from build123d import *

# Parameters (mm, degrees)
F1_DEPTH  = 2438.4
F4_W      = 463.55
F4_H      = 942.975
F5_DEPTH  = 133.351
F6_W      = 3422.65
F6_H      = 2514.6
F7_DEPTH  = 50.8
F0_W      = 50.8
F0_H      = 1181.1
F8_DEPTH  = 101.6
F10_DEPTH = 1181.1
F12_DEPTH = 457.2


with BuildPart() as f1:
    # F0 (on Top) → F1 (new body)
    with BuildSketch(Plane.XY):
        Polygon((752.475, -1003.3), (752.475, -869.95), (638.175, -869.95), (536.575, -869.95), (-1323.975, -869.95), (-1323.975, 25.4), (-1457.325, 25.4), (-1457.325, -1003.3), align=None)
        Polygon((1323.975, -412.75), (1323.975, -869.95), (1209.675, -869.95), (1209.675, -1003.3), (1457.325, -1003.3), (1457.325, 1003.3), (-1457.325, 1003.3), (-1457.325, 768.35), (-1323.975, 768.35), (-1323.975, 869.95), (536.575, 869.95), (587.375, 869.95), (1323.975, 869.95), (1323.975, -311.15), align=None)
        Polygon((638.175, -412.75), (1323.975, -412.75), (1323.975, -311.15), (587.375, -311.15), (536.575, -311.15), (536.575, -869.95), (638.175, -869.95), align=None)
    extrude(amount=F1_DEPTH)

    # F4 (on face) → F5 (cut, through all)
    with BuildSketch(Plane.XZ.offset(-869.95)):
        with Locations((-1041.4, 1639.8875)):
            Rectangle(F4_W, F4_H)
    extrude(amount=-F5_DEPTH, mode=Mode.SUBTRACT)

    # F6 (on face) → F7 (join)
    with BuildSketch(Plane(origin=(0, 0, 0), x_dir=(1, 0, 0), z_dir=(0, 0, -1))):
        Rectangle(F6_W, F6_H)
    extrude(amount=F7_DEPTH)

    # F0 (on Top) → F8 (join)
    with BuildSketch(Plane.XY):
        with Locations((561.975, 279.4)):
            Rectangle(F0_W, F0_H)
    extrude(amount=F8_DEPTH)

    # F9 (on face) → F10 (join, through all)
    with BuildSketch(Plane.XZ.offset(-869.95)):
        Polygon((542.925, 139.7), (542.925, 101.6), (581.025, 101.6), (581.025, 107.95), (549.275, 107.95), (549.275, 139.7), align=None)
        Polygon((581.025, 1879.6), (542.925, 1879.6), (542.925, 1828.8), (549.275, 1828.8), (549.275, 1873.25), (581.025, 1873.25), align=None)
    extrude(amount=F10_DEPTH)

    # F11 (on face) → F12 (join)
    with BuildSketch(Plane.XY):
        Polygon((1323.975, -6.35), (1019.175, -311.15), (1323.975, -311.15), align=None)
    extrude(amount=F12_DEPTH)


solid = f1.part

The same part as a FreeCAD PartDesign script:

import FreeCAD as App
import Part
import Sketcher
Q = App.Units.Quantity

doc = App.newDocument("Part")
params = doc.addObject("Spreadsheet::Sheet", "Params")
for row, (alias, value) in enumerate([
    ("sketch1_width", "27 in"),
    ("sketch1_width2", "31 in"),
    ("sketch1_width3", "87 in"),
    ("sketch1_height", "18 in"),
    ("sketch1_height2", "79 in"),
    ("pad1_length", "96 in"),
    ("sketch2_width", "18.25 in"),
    ("sketch2_height", "37.125 in"),
    ("sketch3_height", "99 in"),
    ("sketch3_width", "134.75 in"),
    ("pad2_length", "2 in"),
    ("sketch4_width", "2 in"),
    ("sketch4_height", "46.5 in"),
    ("pad3_length", "4 in"),
    ("sketch5_height", "2 in"),
    ("sketch5_width", "1.5 in"),
    ("sketch5_width2", "1.25 in"),
    ("sketch6_width", "12 in"),
    ("pad5_length", "18 in"),
], start=1):
    params.set(f"A{row}", alias)
    params.set(f"B{row}", "=" + value)
    params.setAlias(f"B{row}", alias)

body = doc.addObject("PartDesign::Body", "Body")

# Sketch on XY plane
sketch1 = body.newObject("Sketcher::SketchObject", "Sketch")
sketch1.AttachmentSupport = (doc.getObject("XY_Plane"), [""])
sketch1.MapMode = "FlatFace"
sketch1.addGeometry(Part.LineSegment(App.Vector(752.475, -1003.3, 0), App.Vector(752.475, -869.95, 0)), False)
sketch1.addGeometry(Part.LineSegment(App.Vector(752.475, -869.95, 0), App.Vector(638.175, -869.95, 0)), False)
sketch1.addGeometry(Part.LineSegment(App.Vector(638.175, -869.95, 0), App.Vector(638.175, -412.75, 0)), False)
sketch1.addGeometry(Part.LineSegment(App.Vector(638.175, -412.75, 0), App.Vector(1323.975, -412.75, 0)), False)
sketch1.addGeometry(Part.LineSegment(App.Vector(1323.975, -412.75, 0), App.Vector(1323.975, -869.95, 0)), False)
sketch1.addGeometry(Part.LineSegment(App.Vector(1323.975, -869.95, 0), App.Vector(1209.675, -869.95, 0)), False)
sketch1.addGeometry(Part.LineSegment(App.Vector(1209.675, -869.95, 0), App.Vector(1209.675, -1003.3, 0)), False)
sketch1.addGeometry(Part.LineSegment(App.Vector(1209.675, -1003.3, 0), App.Vector(1457.325, -1003.3, 0)), False)
sketch1.addGeometry(Part.LineSegment(App.Vector(1457.325, -1003.3, 0), App.Vector(1457.325, 1003.3, 0)), False)
sketch1.addGeometry(Part.LineSegment(App.Vector(1457.325, 1003.3, 0), App.Vector(-1457.325, 1003.3, 0)), False)
sketch1.addGeometry(Part.LineSegment(App.Vector(-1457.325, 1003.3, 0), App.Vector(-1457.325, 768.35, 0)), False)
sketch1.addGeometry(Part.LineSegment(App.Vector(-1457.325, 768.35, 0), App.Vector(-1323.975, 768.35, 0)), False)
sketch1.addGeometry(Part.LineSegment(App.Vector(-1323.975, 768.35, 0), App.Vector(-1323.975, 869.95, 0)), False)
sketch1.addGeometry(Part.LineSegment(App.Vector(-1323.975, 869.95, 0), App.Vector(1323.975, 869.95, 0)), False)
sketch1.addGeometry(Part.LineSegment(App.Vector(1323.975, 869.95, 0), App.Vector(1323.975, -311.15, 0)), False)
sketch1.addGeometry(Part.LineSegment(App.Vector(1323.975, -311.15, 0), App.Vector(536.575, -311.15, 0)), False)
sketch1.addGeometry(Part.LineSegment(App.Vector(536.575, -311.15, 0), App.Vector(536.575, -869.95, 0)), False)
sketch1.addGeometry(Part.LineSegment(App.Vector(536.575, -869.95, 0), App.Vector(-1323.975, -869.95, 0)), False)
sketch1.addGeometry(Part.LineSegment(App.Vector(-1323.975, -869.95, 0), App.Vector(-1323.975, 25.4, 0)), False)
sketch1.addGeometry(Part.LineSegment(App.Vector(-1323.975, 25.4, 0), App.Vector(-1457.325, 25.4, 0)), False)
sketch1.addGeometry(Part.LineSegment(App.Vector(-1457.325, 25.4, 0), App.Vector(-1457.325, -1003.3, 0)), False)
sketch1.addGeometry(Part.LineSegment(App.Vector(-1457.325, -1003.3, 0), App.Vector(752.475, -1003.3, 0)), False)
sketch1.addConstraint(Sketcher.Constraint("Coincident", 0, 2, 1, 1))
sketch1.addConstraint(Sketcher.Constraint("Coincident", 1, 2, 2, 1))
sketch1.addConstraint(Sketcher.Constraint("Coincident", 2, 2, 3, 1))
sketch1.addConstraint(Sketcher.Constraint("Coincident", 3, 2, 4, 1))
sketch1.addConstraint(Sketcher.Constraint("Coincident", 4, 2, 5, 1))
sketch1.addConstraint(Sketcher.Constraint("Coincident", 5, 2, 6, 1))
sketch1.addConstraint(Sketcher.Constraint("Coincident", 6, 2, 7, 1))
sketch1.addConstraint(Sketcher.Constraint("Coincident", 7, 2, 8, 1))
sketch1.addConstraint(Sketcher.Constraint("Coincident", 8, 2, 9, 1))
sketch1.addConstraint(Sketcher.Constraint("Coincident", 9, 2, 10, 1))
sketch1.addConstraint(Sketcher.Constraint("Coincident", 10, 2, 11, 1))
sketch1.addConstraint(Sketcher.Constraint("Coincident", 11, 2, 12, 1))
sketch1.addConstraint(Sketcher.Constraint("Coincident", 12, 2, 13, 1))
sketch1.addConstraint(Sketcher.Constraint("Coincident", 13, 2, 14, 1))
sketch1.addConstraint(Sketcher.Constraint("Coincident", 14, 2, 15, 1))
sketch1.addConstraint(Sketcher.Constraint("Coincident", 15, 2, 16, 1))
sketch1.addConstraint(Sketcher.Constraint("Coincident", 16, 2, 17, 1))
sketch1.addConstraint(Sketcher.Constraint("Coincident", 17, 2, 18, 1))
sketch1.addConstraint(Sketcher.Constraint("Coincident", 18, 2, 19, 1))
sketch1.addConstraint(Sketcher.Constraint("Coincident", 19, 2, 20, 1))
sketch1.addConstraint(Sketcher.Constraint("Coincident", 20, 2, 21, 1))
sketch1.addConstraint(Sketcher.Constraint("Coincident", 21, 2, 0, 1))
sketch1.addConstraint(Sketcher.Constraint("Vertical", 0))
sketch1.addConstraint(Sketcher.Constraint("Horizontal", 1))
sketch1.addConstraint(Sketcher.Constraint("Vertical", 2))
sketch1.addConstraint(Sketcher.Constraint("Horizontal", 3))
sketch1.addConstraint(Sketcher.Constraint("Vertical", 4))
sketch1.addConstraint(Sketcher.Constraint("Horizontal", 5))
sketch1.addConstraint(Sketcher.Constraint("Vertical", 6))
sketch1.addConstraint(Sketcher.Constraint("Horizontal", 7))
sketch1.addConstraint(Sketcher.Constraint("Vertical", 8))
sketch1.addConstraint(Sketcher.Constraint("Horizontal", 9))
sketch1.addConstraint(Sketcher.Constraint("Vertical", 10))
sketch1.addConstraint(Sketcher.Constraint("Horizontal", 11))
sketch1.addConstraint(Sketcher.Constraint("Vertical", 12))
sketch1.addConstraint(Sketcher.Constraint("Horizontal", 13))
sketch1.addConstraint(Sketcher.Constraint("Vertical", 14))
sketch1.addConstraint(Sketcher.Constraint("Horizontal", 15))
sketch1.addConstraint(Sketcher.Constraint("Vertical", 16))
sketch1.addConstraint(Sketcher.Constraint("Horizontal", 17))
sketch1.addConstraint(Sketcher.Constraint("Vertical", 18))
sketch1.addConstraint(Sketcher.Constraint("Horizontal", 19))
sketch1.addConstraint(Sketcher.Constraint("Vertical", 20))
sketch1.addConstraint(Sketcher.Constraint("Horizontal", 21))
sketch1.addConstraint(Sketcher.Constraint("Symmetric", 7, 2, 9, 2, -1, 1))
sketch1.addConstraint(Sketcher.Constraint("Symmetric", 4, 2, 12, 2, -1, 1))
sketch1.addConstraint(Sketcher.Constraint("Symmetric", 13, 2, 17, 2, -1, 1))
sketch1.addConstraint(Sketcher.Constraint("Symmetric", 8, 2, 20, 2, -1, 1))
sketch1.addConstraint(Sketcher.Constraint("Horizontal", 1, 2, 4, 2))
sketch1.addConstraint(Sketcher.Constraint("Vertical", 4, 2, 13, 2))
sketch1.addConstraint(Sketcher.Constraint("Equal", 1, 5))
sketch1.addConstraint(Sketcher.Constraint("Equal", 19, 0))
sketch1.addConstraint(Sketcher.Constraint("DistanceX", 3, 1, 3, 2, Q("27 in")))
sketch1.addConstraint(Sketcher.Constraint("DistanceX", 15, 2, 15, 1, Q("31 in")))
sketch1.addConstraint(Sketcher.Constraint("DistanceX", 21, 1, 21, 2, Q("87 in")))
sketch1.addConstraint(Sketcher.Constraint("DistanceY", 2, 1, 2, 2, Q("18 in")))
sketch1.addConstraint(Sketcher.Constraint("DistanceY", 8, 1, 8, 2, Q("79 in")))
sketch1.addConstraint(Sketcher.Constraint("DistanceY", 12, 1, 12, 2, Q("4 in")))
sketch1.addConstraint(Sketcher.Constraint("DistanceY", 16, 2, 16, 1, Q("22 in")))
sketch1.addConstraint(Sketcher.Constraint("DistanceX", 1, 2, 1, 1, Q("4.5 in")))
sketch1.addConstraint(Sketcher.Constraint("DistanceY", 14, 2, 14, 1, Q("46.5 in")))
sketch1.addConstraint(Sketcher.Constraint("DistanceY", 20, 2, 20, 1, Q("40.5 in")))
sketch1.setExpression("Constraints[52]", "Params.sketch1_width")
sketch1.setExpression("Constraints[53]", "Params.sketch1_width2")
sketch1.setExpression("Constraints[54]", "Params.sketch1_width3")
sketch1.setExpression("Constraints[55]", "Params.sketch1_height")
sketch1.setExpression("Constraints[56]", "Params.sketch1_height2")
pad1 = body.newObject("PartDesign::Pad", "Pad")
pad1.Profile = sketch1
pad1.setExpression("Length", "Params.pad1_length")

# Sketch on XZ plane
sketch2 = body.newObject("Sketcher::SketchObject", "Sketch001")
sketch2.AttachmentSupport = (doc.getObject("XZ_Plane"), [""])
sketch2.MapMode = "FlatFace"
sketch2.AttachmentOffset = App.Placement(App.Vector(0, 0, -34.25 * 25.4), App.Rotation())
sketch2.addGeometry(Part.LineSegment(App.Vector(-1273.175, 2111.375, 0), App.Vector(-1273.175, 1168.4, 0)), False)
sketch2.addGeometry(Part.LineSegment(App.Vector(-1273.175, 1168.4, 0), App.Vector(-809.625, 1168.4, 0)), False)
sketch2.addGeometry(Part.LineSegment(App.Vector(-809.625, 1168.4, 0), App.Vector(-809.625, 2111.375, 0)), False)
sketch2.addGeometry(Part.LineSegment(App.Vector(-809.625, 2111.375, 0), App.Vector(-1273.175, 2111.375, 0)), False)
sketch2.addConstraint(Sketcher.Constraint("Coincident", 0, 2, 1, 1))
sketch2.addConstraint(Sketcher.Constraint("Coincident", 1, 2, 2, 1))
sketch2.addConstraint(Sketcher.Constraint("Coincident", 2, 2, 3, 1))
sketch2.addConstraint(Sketcher.Constraint("Coincident", 3, 2, 0, 1))
sketch2.addConstraint(Sketcher.Constraint("Vertical", 0))
sketch2.addConstraint(Sketcher.Constraint("Horizontal", 1))
sketch2.addConstraint(Sketcher.Constraint("Vertical", 2))
sketch2.addConstraint(Sketcher.Constraint("Horizontal", 3))
sketch2.addConstraint(Sketcher.Constraint("DistanceY", -1, 1, 0, 2, Q("46 in")))
sketch2.addConstraint(Sketcher.Constraint("DistanceX", 1, 1, 1, 2, Q("18.25 in")))
sketch2.addConstraint(Sketcher.Constraint("DistanceY", 0, 2, 0, 1, Q("37.125 in")))
sketch2.addConstraint(Sketcher.Constraint("DistanceX", 0, 2, -1, 1, Q("50.125 in")))
sketch2.setExpression("Constraints[9]", "Params.sketch2_width")
sketch2.setExpression("Constraints[10]", "Params.sketch2_height")
pocket1 = body.newObject("PartDesign::Pocket", "Pocket")
pocket1.Profile = sketch2
pocket1.Type = "ThroughAll"

# Sketch on XY plane
sketch3 = body.newObject("Sketcher::SketchObject", "Sketch002")
sketch3.AttachmentSupport = (doc.getObject("XY_Plane"), [""])
sketch3.MapMode = "FlatFace"
sketch3.addGeometry(Part.LineSegment(App.Vector(-1711.325, -1257.3, 0), App.Vector(-1711.325, 1257.3, 0)), False)
sketch3.addGeometry(Part.LineSegment(App.Vector(-1711.325, 1257.3, 0), App.Vector(1711.325, 1257.3, 0)), False)
sketch3.addGeometry(Part.LineSegment(App.Vector(1711.325, 1257.3, 0), App.Vector(1711.325, -1257.3, 0)), False)
sketch3.addGeometry(Part.LineSegment(App.Vector(1711.325, -1257.3, 0), App.Vector(-1711.325, -1257.3, 0)), False)
sketch3.addConstraint(Sketcher.Constraint("Coincident", 0, 2, 1, 1))
sketch3.addConstraint(Sketcher.Constraint("Coincident", 1, 2, 2, 1))
sketch3.addConstraint(Sketcher.Constraint("Coincident", 2, 2, 3, 1))
sketch3.addConstraint(Sketcher.Constraint("Coincident", 3, 2, 0, 1))
sketch3.addConstraint(Sketcher.Constraint("Vertical", 0))
sketch3.addConstraint(Sketcher.Constraint("Horizontal", 1))
sketch3.addConstraint(Sketcher.Constraint("Vertical", 2))
sketch3.addConstraint(Sketcher.Constraint("Horizontal", 3))
sketch3.addConstraint(Sketcher.Constraint("Symmetric", 0, 2, 2, 2, -1, 1))
sketch3.addConstraint(Sketcher.Constraint("DistanceY", 0, 1, 0, 2, Q("99 in")))
sketch3.addConstraint(Sketcher.Constraint("DistanceX", 1, 1, 1, 2, Q("134.75 in")))
sketch3.setExpression("Constraints[9]", "Params.sketch3_height")
sketch3.setExpression("Constraints[10]", "Params.sketch3_width")
pad2 = body.newObject("PartDesign::Pad", "Pad001")
pad2.Profile = sketch3
pad2.setExpression("Length", "Params.pad2_length")
pad2.Reversed = True

# Sketch on XY plane
sketch4 = body.newObject("Sketcher::SketchObject", "Sketch003")
sketch4.AttachmentSupport = (doc.getObject("XY_Plane"), [""])
sketch4.MapMode = "FlatFace"
sketch4.addGeometry(Part.LineSegment(App.Vector(536.575, 869.95, 0), App.Vector(536.575, -311.15, 0)), False)
sketch4.addGeometry(Part.LineSegment(App.Vector(536.575, -311.15, 0), App.Vector(587.375, -311.15, 0)), False)
sketch4.addGeometry(Part.LineSegment(App.Vector(587.375, -311.15, 0), App.Vector(587.375, 869.95, 0)), False)
sketch4.addGeometry(Part.LineSegment(App.Vector(587.375, 869.95, 0), App.Vector(536.575, 869.95, 0)), False)
sketch4.addConstraint(Sketcher.Constraint("Coincident", 0, 2, 1, 1))
sketch4.addConstraint(Sketcher.Constraint("Coincident", 1, 2, 2, 1))
sketch4.addConstraint(Sketcher.Constraint("Coincident", 2, 2, 3, 1))
sketch4.addConstraint(Sketcher.Constraint("Coincident", 3, 2, 0, 1))
sketch4.addConstraint(Sketcher.Constraint("Vertical", 0))
sketch4.addConstraint(Sketcher.Constraint("Horizontal", 1))
sketch4.addConstraint(Sketcher.Constraint("Vertical", 2))
sketch4.addConstraint(Sketcher.Constraint("Horizontal", 3))
sketch4.addConstraint(Sketcher.Constraint("DistanceX", 1, 1, 1, 2, Q("2 in")))
sketch4.addConstraint(Sketcher.Constraint("DistanceY", 0, 2, 0, 1, Q("46.5 in")))
sketch4.addConstraint(Sketcher.Constraint("DistanceY", 0, 2, -1, 1, Q("12.25 in")))
sketch4.addConstraint(Sketcher.Constraint("DistanceX", -1, 1, 0, 2, Q("21.125 in")))
sketch4.setExpression("Constraints[8]", "Params.sketch4_width")
sketch4.setExpression("Constraints[9]", "Params.sketch4_height")
pad3 = body.newObject("PartDesign::Pad", "Pad002")
pad3.Profile = sketch4
pad3.setExpression("Length", "Params.pad3_length")

# Sketch on XZ plane
sketch5 = body.newObject("Sketcher::SketchObject", "Sketch004")
sketch5.AttachmentSupport = (doc.getObject("XZ_Plane"), [""])
sketch5.MapMode = "FlatFace"
sketch5.AttachmentOffset = App.Placement(App.Vector(0, 0, -34.25 * 25.4), App.Rotation())
sketch5.addGeometry(Part.LineSegment(App.Vector(542.925, 139.7, 0), App.Vector(542.925, 101.6, 0)), False)
sketch5.addGeometry(Part.LineSegment(App.Vector(542.925, 101.6, 0), App.Vector(581.025, 101.6, 0)), False)
sketch5.addGeometry(Part.LineSegment(App.Vector(581.025, 101.6, 0), App.Vector(581.025, 107.95, 0)), False)
sketch5.addGeometry(Part.LineSegment(App.Vector(581.025, 107.95, 0), App.Vector(549.275, 107.95, 0)), False)
sketch5.addGeometry(Part.LineSegment(App.Vector(549.275, 107.95, 0), App.Vector(549.275, 139.7, 0)), False)
sketch5.addGeometry(Part.LineSegment(App.Vector(549.275, 139.7, 0), App.Vector(542.925, 139.7, 0)), False)
sketch5.addGeometry(Part.LineSegment(App.Vector(581.025, 1879.6, 0), App.Vector(542.925, 1879.6, 0)), False)
sketch5.addGeometry(Part.LineSegment(App.Vector(542.925, 1879.6, 0), App.Vector(542.925, 1828.8, 0)), False)
sketch5.addGeometry(Part.LineSegment(App.Vector(542.925, 1828.8, 0), App.Vector(549.275, 1828.8, 0)), False)
sketch5.addGeometry(Part.LineSegment(App.Vector(549.275, 1828.8, 0), App.Vector(549.275, 1873.25, 0)), False)
sketch5.addGeometry(Part.LineSegment(App.Vector(549.275, 1873.25, 0), App.Vector(581.025, 1873.25, 0)), False)
sketch5.addGeometry(Part.LineSegment(App.Vector(581.025, 1873.25, 0), App.Vector(581.025, 1879.6, 0)), False)
sketch5.addConstraint(Sketcher.Constraint("Coincident", 0, 2, 1, 1))
sketch5.addConstraint(Sketcher.Constraint("Coincident", 1, 2, 2, 1))
sketch5.addConstraint(Sketcher.Constraint("Coincident", 2, 2, 3, 1))
sketch5.addConstraint(Sketcher.Constraint("Coincident", 3, 2, 4, 1))
sketch5.addConstraint(Sketcher.Constraint("Coincident", 4, 2, 5, 1))
sketch5.addConstraint(Sketcher.Constraint("Coincident", 5, 2, 0, 1))
sketch5.addConstraint(Sketcher.Constraint("Coincident", 6, 2, 7, 1))
sketch5.addConstraint(Sketcher.Constraint("Coincident", 7, 2, 8, 1))
sketch5.addConstraint(Sketcher.Constraint("Coincident", 8, 2, 9, 1))
sketch5.addConstraint(Sketcher.Constraint("Coincident", 9, 2, 10, 1))
sketch5.addConstraint(Sketcher.Constraint("Coincident", 10, 2, 11, 1))
sketch5.addConstraint(Sketcher.Constraint("Coincident", 11, 2, 6, 1))
sketch5.addConstraint(Sketcher.Constraint("Vertical", 0))
sketch5.addConstraint(Sketcher.Constraint("Horizontal", 1))
sketch5.addConstraint(Sketcher.Constraint("Vertical", 2))
sketch5.addConstraint(Sketcher.Constraint("Horizontal", 3))
sketch5.addConstraint(Sketcher.Constraint("Vertical", 4))
sketch5.addConstraint(Sketcher.Constraint("Horizontal", 5))
sketch5.addConstraint(Sketcher.Constraint("Horizontal", 6))
sketch5.addConstraint(Sketcher.Constraint("Vertical", 7))
sketch5.addConstraint(Sketcher.Constraint("Horizontal", 8))
sketch5.addConstraint(Sketcher.Constraint("Vertical", 9))
sketch5.addConstraint(Sketcher.Constraint("Horizontal", 10))
sketch5.addConstraint(Sketcher.Constraint("Vertical", 11))
sketch5.addConstraint(Sketcher.Constraint("Vertical", 5, 2, 6, 2))
sketch5.addConstraint(Sketcher.Constraint("Vertical", 4, 2, 8, 2))
sketch5.addConstraint(Sketcher.Constraint("Vertical", 2, 2, 10, 2))
sketch5.addConstraint(Sketcher.Constraint("Equal", 6, 0))
sketch5.addConstraint(Sketcher.Constraint("Equal", 8, 2))
sketch5.addConstraint(Sketcher.Constraint("Equal", 2, 11))
sketch5.addConstraint(Sketcher.Constraint("DistanceY", 7, 2, 7, 1, Q("2 in")))
sketch5.addConstraint(Sketcher.Constraint("DistanceX", 1, 1, 1, 2, Q("1.5 in")))
sketch5.addConstraint(Sketcher.Constraint("DistanceY", -1, 1, 0, 2, Q("4 in")))
sketch5.addConstraint(Sketcher.Constraint("DistanceY", -1, 1, 6, 2, Q("74 in")))
sketch5.addConstraint(Sketcher.Constraint("DistanceX", 3, 2, 3, 1, Q("1.25 in")))
sketch5.addConstraint(Sketcher.Constraint("DistanceX", -1, 1, 0, 2, Q("21.375 in")))
sketch5.setExpression("Constraints[30]", "Params.sketch5_height")
sketch5.setExpression("Constraints[31]", "Params.sketch5_width")
sketch5.setExpression("Constraints[34]", "Params.sketch5_width2")
pad4 = body.newObject("PartDesign::Pad", "Pad003")
pad4.Profile = sketch5
pad4.Type = "UpToLast"

# Sketch on XY plane
sketch6 = body.newObject("Sketcher::SketchObject", "Sketch005")
sketch6.AttachmentSupport = (doc.getObject("XY_Plane"), [""])
sketch6.MapMode = "FlatFace"
sketch6.addGeometry(Part.LineSegment(App.Vector(1323.975, -6.35, 0), App.Vector(1019.175, -311.15, 0)), False)
sketch6.addGeometry(Part.LineSegment(App.Vector(1019.175, -311.15, 0), App.Vector(1323.975, -311.15, 0)), False)
sketch6.addGeometry(Part.LineSegment(App.Vector(1323.975, -311.15, 0), App.Vector(1323.975, -6.35, 0)), False)
sketch6.addConstraint(Sketcher.Constraint("Coincident", 0, 2, 1, 1))
sketch6.addConstraint(Sketcher.Constraint("Coincident", 1, 2, 2, 1))
sketch6.addConstraint(Sketcher.Constraint("Coincident", 2, 2, 0, 1))
sketch6.addConstraint(Sketcher.Constraint("Horizontal", 1))
sketch6.addConstraint(Sketcher.Constraint("Vertical", 2))
sketch6.addConstraint(Sketcher.Constraint("Equal", 1, 2))
sketch6.addConstraint(Sketcher.Constraint("DistanceX", 1, 1, 1, 2, Q("12 in")))
sketch6.addConstraint(Sketcher.Constraint("DistanceY", 0, 2, -1, 1, Q("12.25 in")))
sketch6.addConstraint(Sketcher.Constraint("DistanceX", -1, 1, 0, 2, Q("40.125 in")))
sketch6.setExpression("Constraints[6]", "Params.sketch6_width")
pad5 = body.newObject("PartDesign::Pad", "Pad004")
pad5.Profile = sketch6
pad5.setExpression("Length", "Params.pad5_length")

doc.recompute()
